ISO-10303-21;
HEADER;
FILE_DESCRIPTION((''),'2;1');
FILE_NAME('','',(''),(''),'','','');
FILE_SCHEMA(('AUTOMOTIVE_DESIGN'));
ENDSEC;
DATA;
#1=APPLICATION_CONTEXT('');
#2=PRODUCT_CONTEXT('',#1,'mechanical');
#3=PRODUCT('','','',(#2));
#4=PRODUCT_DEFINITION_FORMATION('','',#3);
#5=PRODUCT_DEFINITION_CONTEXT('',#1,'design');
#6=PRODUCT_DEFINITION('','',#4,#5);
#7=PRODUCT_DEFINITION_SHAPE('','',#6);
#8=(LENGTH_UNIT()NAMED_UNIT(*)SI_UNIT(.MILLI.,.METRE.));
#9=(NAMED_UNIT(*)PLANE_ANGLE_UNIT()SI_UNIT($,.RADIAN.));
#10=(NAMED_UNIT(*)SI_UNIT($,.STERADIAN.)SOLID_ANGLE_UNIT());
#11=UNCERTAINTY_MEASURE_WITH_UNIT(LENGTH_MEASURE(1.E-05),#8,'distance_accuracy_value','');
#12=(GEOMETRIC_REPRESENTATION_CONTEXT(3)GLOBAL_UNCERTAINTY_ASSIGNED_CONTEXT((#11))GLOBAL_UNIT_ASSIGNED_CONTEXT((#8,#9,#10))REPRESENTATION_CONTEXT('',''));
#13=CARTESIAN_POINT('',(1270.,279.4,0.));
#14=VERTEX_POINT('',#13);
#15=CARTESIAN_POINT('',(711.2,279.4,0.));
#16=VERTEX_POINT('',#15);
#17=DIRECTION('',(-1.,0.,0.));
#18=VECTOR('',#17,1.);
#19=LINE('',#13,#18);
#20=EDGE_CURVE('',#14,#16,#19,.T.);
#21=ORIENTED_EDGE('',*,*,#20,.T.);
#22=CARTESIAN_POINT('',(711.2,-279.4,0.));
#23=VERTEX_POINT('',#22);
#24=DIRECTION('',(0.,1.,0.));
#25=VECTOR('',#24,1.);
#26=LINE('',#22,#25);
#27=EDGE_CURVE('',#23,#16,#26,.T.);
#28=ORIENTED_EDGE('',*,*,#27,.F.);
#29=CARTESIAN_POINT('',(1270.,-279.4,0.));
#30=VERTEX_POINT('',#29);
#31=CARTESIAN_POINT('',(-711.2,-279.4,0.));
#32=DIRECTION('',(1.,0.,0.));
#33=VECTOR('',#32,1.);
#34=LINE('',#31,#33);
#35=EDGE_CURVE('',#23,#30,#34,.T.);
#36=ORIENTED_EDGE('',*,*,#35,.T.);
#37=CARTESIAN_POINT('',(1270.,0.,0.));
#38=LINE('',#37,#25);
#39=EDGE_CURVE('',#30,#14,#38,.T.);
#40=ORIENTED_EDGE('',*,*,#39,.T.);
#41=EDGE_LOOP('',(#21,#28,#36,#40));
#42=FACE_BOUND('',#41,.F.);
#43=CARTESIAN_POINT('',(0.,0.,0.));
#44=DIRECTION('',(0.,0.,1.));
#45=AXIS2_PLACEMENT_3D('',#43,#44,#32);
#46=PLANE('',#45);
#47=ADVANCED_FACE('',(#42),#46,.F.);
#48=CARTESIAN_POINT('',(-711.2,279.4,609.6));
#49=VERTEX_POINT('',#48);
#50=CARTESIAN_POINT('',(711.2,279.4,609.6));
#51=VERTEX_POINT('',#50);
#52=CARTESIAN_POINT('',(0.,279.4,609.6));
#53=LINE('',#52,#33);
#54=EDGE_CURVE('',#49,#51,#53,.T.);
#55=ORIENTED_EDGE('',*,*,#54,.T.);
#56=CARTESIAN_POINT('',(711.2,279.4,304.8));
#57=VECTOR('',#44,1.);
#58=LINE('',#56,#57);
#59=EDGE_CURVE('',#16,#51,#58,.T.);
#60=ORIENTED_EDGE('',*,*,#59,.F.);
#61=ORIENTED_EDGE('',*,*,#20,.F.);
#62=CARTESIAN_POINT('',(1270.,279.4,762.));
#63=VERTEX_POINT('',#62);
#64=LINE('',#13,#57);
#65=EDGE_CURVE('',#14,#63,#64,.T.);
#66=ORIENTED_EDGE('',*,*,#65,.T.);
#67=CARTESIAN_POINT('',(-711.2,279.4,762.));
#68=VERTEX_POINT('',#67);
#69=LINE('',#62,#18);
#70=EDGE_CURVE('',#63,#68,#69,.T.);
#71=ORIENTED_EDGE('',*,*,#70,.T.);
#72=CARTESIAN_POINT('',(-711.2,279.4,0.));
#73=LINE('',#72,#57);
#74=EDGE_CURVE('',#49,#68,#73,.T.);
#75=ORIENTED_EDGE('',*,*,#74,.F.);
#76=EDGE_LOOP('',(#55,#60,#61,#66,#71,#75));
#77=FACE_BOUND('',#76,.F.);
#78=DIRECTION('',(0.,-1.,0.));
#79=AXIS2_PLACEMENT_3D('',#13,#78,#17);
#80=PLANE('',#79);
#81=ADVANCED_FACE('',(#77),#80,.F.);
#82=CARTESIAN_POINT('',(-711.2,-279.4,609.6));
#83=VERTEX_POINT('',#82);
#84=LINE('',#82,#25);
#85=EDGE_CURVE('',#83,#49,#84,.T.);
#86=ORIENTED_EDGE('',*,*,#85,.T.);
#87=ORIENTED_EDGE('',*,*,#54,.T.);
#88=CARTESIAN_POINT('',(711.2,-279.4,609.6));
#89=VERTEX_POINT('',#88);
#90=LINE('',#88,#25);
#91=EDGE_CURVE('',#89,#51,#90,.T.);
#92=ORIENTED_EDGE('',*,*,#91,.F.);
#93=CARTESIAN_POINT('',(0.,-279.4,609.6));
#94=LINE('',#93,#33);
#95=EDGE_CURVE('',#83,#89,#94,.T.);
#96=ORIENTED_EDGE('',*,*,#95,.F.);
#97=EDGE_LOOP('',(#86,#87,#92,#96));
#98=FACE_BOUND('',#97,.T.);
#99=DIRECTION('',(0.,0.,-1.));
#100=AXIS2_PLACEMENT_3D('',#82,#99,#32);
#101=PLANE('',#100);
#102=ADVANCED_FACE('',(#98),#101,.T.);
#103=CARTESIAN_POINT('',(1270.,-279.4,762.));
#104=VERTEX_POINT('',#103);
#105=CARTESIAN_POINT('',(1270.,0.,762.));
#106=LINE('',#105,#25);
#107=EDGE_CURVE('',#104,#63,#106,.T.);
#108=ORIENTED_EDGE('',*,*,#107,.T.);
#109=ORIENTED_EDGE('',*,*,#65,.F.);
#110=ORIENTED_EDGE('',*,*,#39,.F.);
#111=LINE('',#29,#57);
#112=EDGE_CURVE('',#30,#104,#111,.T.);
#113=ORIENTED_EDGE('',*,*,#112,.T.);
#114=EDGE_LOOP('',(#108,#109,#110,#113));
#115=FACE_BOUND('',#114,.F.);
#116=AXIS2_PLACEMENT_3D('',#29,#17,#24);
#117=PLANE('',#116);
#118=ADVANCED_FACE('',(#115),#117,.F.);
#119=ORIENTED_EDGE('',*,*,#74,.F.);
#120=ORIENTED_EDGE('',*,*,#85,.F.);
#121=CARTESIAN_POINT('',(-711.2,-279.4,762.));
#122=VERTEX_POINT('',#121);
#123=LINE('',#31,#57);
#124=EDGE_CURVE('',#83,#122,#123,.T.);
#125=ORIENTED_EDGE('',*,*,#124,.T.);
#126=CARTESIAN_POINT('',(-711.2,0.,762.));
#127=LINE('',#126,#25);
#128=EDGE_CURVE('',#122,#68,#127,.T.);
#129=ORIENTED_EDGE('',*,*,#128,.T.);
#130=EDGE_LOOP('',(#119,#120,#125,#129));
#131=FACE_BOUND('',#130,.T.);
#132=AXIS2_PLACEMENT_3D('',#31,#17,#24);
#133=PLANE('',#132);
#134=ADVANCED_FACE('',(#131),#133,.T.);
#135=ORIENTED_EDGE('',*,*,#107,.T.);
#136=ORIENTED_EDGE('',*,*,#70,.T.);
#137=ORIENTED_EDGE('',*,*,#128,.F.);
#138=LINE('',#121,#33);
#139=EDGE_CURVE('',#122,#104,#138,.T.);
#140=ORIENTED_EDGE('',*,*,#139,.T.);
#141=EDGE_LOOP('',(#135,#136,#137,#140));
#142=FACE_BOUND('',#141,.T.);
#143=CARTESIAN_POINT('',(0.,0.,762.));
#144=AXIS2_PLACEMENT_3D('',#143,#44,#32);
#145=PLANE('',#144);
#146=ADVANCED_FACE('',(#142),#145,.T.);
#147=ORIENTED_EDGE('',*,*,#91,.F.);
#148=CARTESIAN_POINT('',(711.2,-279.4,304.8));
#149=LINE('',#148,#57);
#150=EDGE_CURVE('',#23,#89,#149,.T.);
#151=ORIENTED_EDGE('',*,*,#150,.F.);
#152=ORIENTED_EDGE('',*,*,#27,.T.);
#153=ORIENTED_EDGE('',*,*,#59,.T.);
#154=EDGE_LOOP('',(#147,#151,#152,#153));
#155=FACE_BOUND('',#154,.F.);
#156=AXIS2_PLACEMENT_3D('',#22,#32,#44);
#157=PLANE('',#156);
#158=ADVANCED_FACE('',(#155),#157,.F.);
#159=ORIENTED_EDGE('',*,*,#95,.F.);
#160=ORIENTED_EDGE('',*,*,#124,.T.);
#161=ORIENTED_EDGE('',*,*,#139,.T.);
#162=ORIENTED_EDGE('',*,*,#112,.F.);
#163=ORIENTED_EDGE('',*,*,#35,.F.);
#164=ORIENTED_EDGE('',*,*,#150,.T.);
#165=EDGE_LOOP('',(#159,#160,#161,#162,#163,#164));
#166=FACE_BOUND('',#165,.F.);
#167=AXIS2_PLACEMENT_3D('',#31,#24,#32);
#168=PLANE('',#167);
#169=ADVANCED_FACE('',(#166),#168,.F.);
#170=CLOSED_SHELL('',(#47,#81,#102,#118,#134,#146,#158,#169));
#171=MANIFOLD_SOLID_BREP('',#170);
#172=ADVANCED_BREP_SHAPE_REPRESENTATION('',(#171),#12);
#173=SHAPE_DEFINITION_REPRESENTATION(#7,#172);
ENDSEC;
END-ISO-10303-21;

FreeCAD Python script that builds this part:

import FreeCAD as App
import Part
import Sketcher
Q = App.Units.Quantity

doc = App.newDocument("Part")
body = doc.addObject("PartDesign::Body", "Body")

# Sketch on XY plane
sketch1 = body.newObject("Sketcher::SketchObject", "Sketch")
sketch1.AttachmentSupport = (doc.getObject("XY_Plane"), [""])
sketch1.MapMode = "FlatFace"
sketch1.addGeometry([
    Part.LineSegment(App.Vector(-711, 279, 0), App.Vector(-711, -279, 0)),
    Part.LineSegment(App.Vector(-711, -279, 0), App.Vector(1270, -279, 0)),
    Part.LineSegment(App.Vector(1270, -279, 0), App.Vector(1270, 279, 0)),
    Part.LineSegment(App.Vector(1270, 279, 0), App.Vector(-711, 279, 0)),
], False)
sketch1.addConstraint([
    Sketcher.Constraint("Coincident", 0, 2, 1, 1),
    Sketcher.Constraint("Coincident", 1, 2, 2, 1),
    Sketcher.Constraint("Coincident", 2, 2, 3, 1),
    Sketcher.Constraint("Coincident", 3, 2, 0, 1),
    Sketcher.Constraint("Vertical", 0),
    Sketcher.Constraint("Horizontal", 1),
    Sketcher.Constraint("Vertical", 2),
    Sketcher.Constraint("Horizontal", 3),
    Sketcher.Constraint("DistanceX", 1, 1, 1, 2, Q("78 in")),
    Sketcher.Constraint("DistanceY", 0, 2, 0, 1, Q("22 in")),
    Sketcher.Constraint("DistanceX", 0, 2, -1, 1, Q("28 in")),
    Sketcher.Constraint("DistanceY", 0, 2, -1, 1, Q("11 in")),
])
pad1 = body.newObject("PartDesign::Pad", "Pad")
pad1.Profile = sketch1
pad1.Length = Q("30 in")

# Sketch on XZ plane
sketch2 = body.newObject("Sketcher::SketchObject", "Sketch001")
sketch2.AttachmentSupport = (doc.getObject("XZ_Plane"), [""])
sketch2.MapMode = "FlatFace"
sketch2.AttachmentOffset = App.Placement(App.Vector(0, 0, 11 * 25.4), App.Rotation())
sketch2.addGeometry([
    Part.LineSegment(App.Vector(-711, 610, 0), App.Vector(-711, 0, 0)),
    Part.LineSegment(App.Vector(-711, 0, 0), App.Vector(711, 0, 0)),
    Part.LineSegment(App.Vector(711, 0, 0), App.Vector(711, 610, 0)),
    Part.LineSegment(App.Vector(711, 610, 0), App.Vector(-711, 610, 0)),
], False)
sketch2.addConstraint([
    Sketcher.Constraint("Coincident", 0, 2, 1, 1),
    Sketcher.Constraint("Coincident", 1, 2, 2, 1),
    Sketcher.Constraint("Coincident", 2, 2, 3, 1),
    Sketcher.Constraint("Coincident", 3, 2, 0, 1),
    Sketcher.Constraint("Vertical", 0),
    Sketcher.Constraint("Horizontal", 1),
    Sketcher.Constraint("Vertical", 2),
    Sketcher.Constraint("Horizontal", 3),
    Sketcher.Constraint("Symmetric", 0, 2, 1, 2, -1, 1),
    Sketcher.Constraint("DistanceX", 1, 1, 1, 2, Q("56 in")),
    Sketcher.Constraint("DistanceY", 0, 2, 0, 1, Q("24 in")),
])
pocket1 = body.newObject("PartDesign::Pocket", "Pocket")
pocket1.Profile = sketch2
pocket1.Length = Q("22 in")

doc.recompute()
